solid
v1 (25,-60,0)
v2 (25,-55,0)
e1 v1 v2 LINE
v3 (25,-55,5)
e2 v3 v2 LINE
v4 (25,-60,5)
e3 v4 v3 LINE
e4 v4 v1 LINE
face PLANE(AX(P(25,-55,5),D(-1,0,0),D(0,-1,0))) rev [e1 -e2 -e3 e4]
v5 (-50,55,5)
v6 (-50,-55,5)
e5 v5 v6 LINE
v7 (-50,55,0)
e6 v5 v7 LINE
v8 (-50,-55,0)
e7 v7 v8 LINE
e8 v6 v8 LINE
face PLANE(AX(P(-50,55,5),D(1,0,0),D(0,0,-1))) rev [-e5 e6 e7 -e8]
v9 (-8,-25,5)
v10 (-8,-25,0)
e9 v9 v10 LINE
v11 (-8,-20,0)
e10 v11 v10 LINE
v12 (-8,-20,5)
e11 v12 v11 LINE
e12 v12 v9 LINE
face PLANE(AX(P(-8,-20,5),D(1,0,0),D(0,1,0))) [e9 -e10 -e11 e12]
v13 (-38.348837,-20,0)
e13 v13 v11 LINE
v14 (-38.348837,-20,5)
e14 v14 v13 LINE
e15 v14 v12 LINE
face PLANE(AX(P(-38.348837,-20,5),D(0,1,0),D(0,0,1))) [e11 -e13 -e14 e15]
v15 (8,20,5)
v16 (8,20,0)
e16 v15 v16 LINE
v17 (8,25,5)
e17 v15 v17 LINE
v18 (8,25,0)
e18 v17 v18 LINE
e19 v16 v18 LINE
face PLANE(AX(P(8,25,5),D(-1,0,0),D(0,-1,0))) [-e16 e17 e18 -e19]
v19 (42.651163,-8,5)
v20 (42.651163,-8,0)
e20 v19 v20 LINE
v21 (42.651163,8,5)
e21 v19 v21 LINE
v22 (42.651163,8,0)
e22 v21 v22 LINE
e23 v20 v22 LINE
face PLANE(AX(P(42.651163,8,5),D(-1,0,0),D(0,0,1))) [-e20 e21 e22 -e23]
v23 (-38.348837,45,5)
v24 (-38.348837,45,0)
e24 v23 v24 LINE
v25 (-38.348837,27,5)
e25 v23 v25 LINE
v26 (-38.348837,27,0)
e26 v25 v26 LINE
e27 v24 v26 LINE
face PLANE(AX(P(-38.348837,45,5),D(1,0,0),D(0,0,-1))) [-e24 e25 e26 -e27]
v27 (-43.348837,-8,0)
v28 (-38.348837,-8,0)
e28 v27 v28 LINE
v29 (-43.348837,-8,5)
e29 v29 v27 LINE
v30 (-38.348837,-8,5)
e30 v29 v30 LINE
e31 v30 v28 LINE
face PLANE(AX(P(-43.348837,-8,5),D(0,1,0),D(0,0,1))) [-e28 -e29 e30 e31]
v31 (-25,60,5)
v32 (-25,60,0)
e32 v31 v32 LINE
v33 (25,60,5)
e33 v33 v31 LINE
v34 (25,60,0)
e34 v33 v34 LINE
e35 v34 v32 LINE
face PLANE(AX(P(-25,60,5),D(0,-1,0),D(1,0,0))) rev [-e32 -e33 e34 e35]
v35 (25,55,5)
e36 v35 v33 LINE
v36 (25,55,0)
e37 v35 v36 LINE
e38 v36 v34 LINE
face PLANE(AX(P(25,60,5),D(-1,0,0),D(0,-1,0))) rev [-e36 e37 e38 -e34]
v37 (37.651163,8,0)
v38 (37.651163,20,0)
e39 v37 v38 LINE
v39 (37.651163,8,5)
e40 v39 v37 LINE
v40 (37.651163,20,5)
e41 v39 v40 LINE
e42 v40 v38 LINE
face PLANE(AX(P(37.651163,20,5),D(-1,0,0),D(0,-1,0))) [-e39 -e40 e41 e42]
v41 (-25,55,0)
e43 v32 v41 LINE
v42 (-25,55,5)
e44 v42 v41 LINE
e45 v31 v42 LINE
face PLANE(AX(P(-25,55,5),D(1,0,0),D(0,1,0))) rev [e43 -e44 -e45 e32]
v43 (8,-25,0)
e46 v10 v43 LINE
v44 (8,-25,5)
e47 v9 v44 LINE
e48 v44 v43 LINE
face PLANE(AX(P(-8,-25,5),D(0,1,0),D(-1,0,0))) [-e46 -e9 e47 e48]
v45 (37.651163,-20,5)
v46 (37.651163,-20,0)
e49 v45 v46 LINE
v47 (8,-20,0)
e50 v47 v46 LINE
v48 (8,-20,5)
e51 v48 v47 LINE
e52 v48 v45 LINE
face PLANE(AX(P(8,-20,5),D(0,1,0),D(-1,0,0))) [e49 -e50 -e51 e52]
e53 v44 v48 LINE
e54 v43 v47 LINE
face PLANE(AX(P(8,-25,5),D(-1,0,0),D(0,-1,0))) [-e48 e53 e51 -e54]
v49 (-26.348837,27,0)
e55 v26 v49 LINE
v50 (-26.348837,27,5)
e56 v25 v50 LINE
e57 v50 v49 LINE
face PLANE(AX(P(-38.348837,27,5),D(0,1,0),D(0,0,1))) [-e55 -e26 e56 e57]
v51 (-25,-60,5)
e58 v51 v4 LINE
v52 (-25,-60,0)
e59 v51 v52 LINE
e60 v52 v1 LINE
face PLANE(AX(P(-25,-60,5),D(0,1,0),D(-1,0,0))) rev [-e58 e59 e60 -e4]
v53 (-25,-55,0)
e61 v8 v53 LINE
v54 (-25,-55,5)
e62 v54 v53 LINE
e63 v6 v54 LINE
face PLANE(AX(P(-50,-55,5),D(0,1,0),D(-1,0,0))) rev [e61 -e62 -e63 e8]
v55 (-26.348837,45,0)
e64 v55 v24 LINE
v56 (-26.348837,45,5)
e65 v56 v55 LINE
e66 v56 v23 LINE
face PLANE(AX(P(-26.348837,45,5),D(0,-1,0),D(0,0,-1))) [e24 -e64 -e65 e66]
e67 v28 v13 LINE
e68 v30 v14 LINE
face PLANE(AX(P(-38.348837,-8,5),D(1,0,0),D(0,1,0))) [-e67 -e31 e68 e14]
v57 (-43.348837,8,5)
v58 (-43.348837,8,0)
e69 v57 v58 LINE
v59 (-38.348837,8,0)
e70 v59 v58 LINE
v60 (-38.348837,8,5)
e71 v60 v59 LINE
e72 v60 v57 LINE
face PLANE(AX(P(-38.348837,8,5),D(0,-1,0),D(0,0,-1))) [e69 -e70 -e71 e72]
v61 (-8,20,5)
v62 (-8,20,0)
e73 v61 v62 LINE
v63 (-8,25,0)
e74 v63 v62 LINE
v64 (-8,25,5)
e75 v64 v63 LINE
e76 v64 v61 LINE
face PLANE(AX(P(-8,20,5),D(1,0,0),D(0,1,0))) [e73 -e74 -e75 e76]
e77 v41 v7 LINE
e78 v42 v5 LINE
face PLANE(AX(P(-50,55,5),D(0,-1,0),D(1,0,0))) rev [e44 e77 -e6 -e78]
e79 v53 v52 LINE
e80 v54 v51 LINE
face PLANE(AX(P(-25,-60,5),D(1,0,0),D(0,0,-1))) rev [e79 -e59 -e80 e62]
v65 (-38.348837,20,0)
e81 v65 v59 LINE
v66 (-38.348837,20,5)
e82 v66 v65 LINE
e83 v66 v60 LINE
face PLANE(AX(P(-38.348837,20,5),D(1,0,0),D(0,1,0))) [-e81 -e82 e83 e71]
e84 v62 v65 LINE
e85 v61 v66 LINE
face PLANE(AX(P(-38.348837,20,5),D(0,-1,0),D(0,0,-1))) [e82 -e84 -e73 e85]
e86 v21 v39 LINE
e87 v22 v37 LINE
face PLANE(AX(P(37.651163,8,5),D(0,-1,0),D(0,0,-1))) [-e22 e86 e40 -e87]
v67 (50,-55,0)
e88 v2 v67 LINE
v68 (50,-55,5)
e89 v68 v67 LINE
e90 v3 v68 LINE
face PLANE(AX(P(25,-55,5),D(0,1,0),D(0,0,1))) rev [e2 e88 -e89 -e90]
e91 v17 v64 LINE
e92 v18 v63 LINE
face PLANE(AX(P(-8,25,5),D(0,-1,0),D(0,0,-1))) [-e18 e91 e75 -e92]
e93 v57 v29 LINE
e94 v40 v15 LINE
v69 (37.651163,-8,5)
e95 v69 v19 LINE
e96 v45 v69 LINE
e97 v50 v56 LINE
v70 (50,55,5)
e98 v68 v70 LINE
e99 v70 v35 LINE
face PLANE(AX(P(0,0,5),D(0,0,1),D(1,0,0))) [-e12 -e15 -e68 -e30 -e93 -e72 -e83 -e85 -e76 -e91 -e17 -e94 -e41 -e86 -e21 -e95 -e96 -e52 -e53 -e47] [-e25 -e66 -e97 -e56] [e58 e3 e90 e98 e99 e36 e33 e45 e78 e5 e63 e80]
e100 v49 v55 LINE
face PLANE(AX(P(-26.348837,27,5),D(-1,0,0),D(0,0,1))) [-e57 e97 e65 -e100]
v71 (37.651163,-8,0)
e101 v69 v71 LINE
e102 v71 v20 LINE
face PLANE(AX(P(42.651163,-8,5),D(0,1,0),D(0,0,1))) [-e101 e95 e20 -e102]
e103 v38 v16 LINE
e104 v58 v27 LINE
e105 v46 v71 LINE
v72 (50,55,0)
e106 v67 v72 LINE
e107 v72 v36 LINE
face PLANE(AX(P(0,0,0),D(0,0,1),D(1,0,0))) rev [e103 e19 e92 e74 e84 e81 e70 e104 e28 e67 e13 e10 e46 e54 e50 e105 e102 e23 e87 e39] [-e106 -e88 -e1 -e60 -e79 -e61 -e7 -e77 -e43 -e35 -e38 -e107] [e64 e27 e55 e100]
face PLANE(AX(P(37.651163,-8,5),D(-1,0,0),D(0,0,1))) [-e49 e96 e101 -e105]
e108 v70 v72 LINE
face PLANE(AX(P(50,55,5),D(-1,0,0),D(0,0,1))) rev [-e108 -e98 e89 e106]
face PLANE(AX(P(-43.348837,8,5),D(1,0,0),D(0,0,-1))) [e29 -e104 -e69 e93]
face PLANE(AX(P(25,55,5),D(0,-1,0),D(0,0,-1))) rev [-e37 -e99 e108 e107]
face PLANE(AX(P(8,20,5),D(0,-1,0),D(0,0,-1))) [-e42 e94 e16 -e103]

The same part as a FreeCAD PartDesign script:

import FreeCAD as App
import Part
import Sketcher

V = App.Vector

doc = App.newDocument("Part")
body = doc.addObject("PartDesign::Body", "Body")

# Sketch on XY plane
sketch1 = body.newObject("Sketcher::SketchObject", "Sketch")
sketch1.AttachmentSupport = (doc.getObject("XY_Plane"), [""])
sketch1.MapMode = "FlatFace"
sketch1.addGeometry([
    Part.LineSegment(V(25, 60, 0), V(-25, 60, 0)),  # 0
    Part.LineSegment(V(-25, 60, 0), V(-25, 55, 0)),  # 1
    Part.LineSegment(V(-25, 55, 0), V(-50, 55, 0)),  # 2
    Part.LineSegment(V(-50, 55, 0), V(-50, -55, 0)),  # 3
    Part.LineSegment(V(-50, -55, 0), V(-25, -55, 0)),  # 4
    Part.LineSegment(V(-25, -55, 0), V(-25, -60, 0)),  # 5
    Part.LineSegment(V(-25, -60, 0), V(25, -60, 0)),  # 6
    Part.LineSegment(V(25, -60, 0), V(25, -55, 0)),  # 7
    Part.LineSegment(V(25, -55, 0), V(50, -55, 0)),  # 8
    Part.LineSegment(V(50, -55, 0), V(50, 55, 0)),  # 9
    Part.LineSegment(V(50, 55, 0), V(25, 55, 0)),  # 10
    Part.LineSegment(V(25, 55, 0), V(25, 60, 0)),  # 11
    Part.LineSegment(V(38, 8, 0), V(43, 8, 0)),  # 12
    Part.LineSegment(V(43, 8, 0), V(43, -8, 0)),  # 13
    Part.LineSegment(V(43, -8, 0), V(38, -8, 0)),  # 14
    Part.LineSegment(V(38, -8, 0), V(38, -20, 0)),  # 15
    Part.LineSegment(V(38, -20, 0), V(8, -20, 0)),  # 16
    Part.LineSegment(V(8, -20, 0), V(8, -25, 0)),  # 17
    Part.LineSegment(V(8, -25, 0), V(-8, -25, 0)),  # 18
    Part.LineSegment(V(-8, -25, 0), V(-8, -20, 0)),  # 19
    Part.LineSegment(V(-8, -20, 0), V(-38, -20, 0)),  # 20
    Part.LineSegment(V(-38, -20, 0), V(-38, -8, 0)),  # 21
    Part.LineSegment(V(-38, -8, 0), V(-43, -8, 0)),  # 22
    Part.LineSegment(V(-43, -8, 0), V(-43, 8, 0)),  # 23
    Part.LineSegment(V(-43, 8, 0), V(-38, 8, 0)),  # 24
    Part.LineSegment(V(-38, 8, 0), V(-38, 20, 0)),  # 25
    Part.LineSegment(V(-38, 20, 0), V(-8, 20, 0)),  # 26
    Part.LineSegment(V(-8, 20, 0), V(-8, 25, 0)),  # 27
    Part.LineSegment(V(-8, 25, 0), V(8, 25, 0)),  # 28
    Part.LineSegment(V(8, 25, 0), V(8, 20, 0)),  # 29
    Part.LineSegment(V(8, 20, 0), V(38, 20, 0)),  # 30
    Part.LineSegment(V(38, 20, 0), V(38, 8, 0)),  # 31
    Part.LineSegment(V(-38, 27, 0), V(-38, 45, 0)),  # 32
    Part.LineSegment(V(-38, 45, 0), V(-26, 45, 0)),  # 33
    Part.LineSegment(V(-26, 45, 0), V(-26, 27, 0)),  # 34
    Part.LineSegment(V(-26, 27, 0), V(-38, 27, 0)),  # 35
], False)
sketch1.addConstraint([
    Sketcher.Constraint("Coincident", 0, 2, 1, 1),
    Sketcher.Constraint("Coincident", 1, 2, 2, 1),
    Sketcher.Constraint("Coincident", 2, 2, 3, 1),
    Sketcher.Constraint("Coincident", 3, 2, 4, 1),
    Sketcher.Constraint("Coincident", 4, 2, 5, 1),
    Sketcher.Constraint("Coincident", 5, 2, 6, 1),
    Sketcher.Constraint("Coincident", 6, 2, 7, 1),
    Sketcher.Constraint("Coincident", 7, 2, 8, 1),
    Sketcher.Constraint("Coincident", 8, 2, 9, 1),
    Sketcher.Constraint("Coincident", 9, 2, 10, 1),
    Sketcher.Constraint("Coincident", 10, 2, 11, 1),
    Sketcher.Constraint("Coincident", 11, 2, 0, 1),
    Sketcher.Constraint("Coincident", 12, 2, 13, 1),
    Sketcher.Constraint("Coincident", 13, 2, 14, 1),
    Sketcher.Constraint("Coincident", 14, 2, 15, 1),
    Sketcher.Constraint("Coincident", 15, 2, 16, 1),
    Sketcher.Constraint("Coincident", 16, 2, 17, 1),
    Sketcher.Constraint("Coincident", 17, 2, 18, 1),
    Sketcher.Constraint("Coincident", 18, 2, 19, 1),
    Sketcher.Constraint("Coincident", 19, 2, 20, 1),
    Sketcher.Constraint("Coincident", 20, 2, 21, 1),
    Sketcher.Constraint("Coincident", 21, 2, 22, 1),
    Sketcher.Constraint("Coincident", 22, 2, 23, 1),
    Sketcher.Constraint("Coincident", 23, 2, 24, 1),
    Sketcher.Constraint("Coincident", 24, 2, 25, 1),
    Sketcher.Constraint("Coincident", 25, 2, 26, 1),
    Sketcher.Constraint("Coincident", 26, 2, 27, 1),
    Sketcher.Constraint("Coincident", 27, 2, 28, 1),
    Sketcher.Constraint("Coincident", 28, 2, 29, 1),
    Sketcher.Constraint("Coincident", 29, 2, 30, 1),
    Sketcher.Constraint("Coincident", 30, 2, 31, 1),
    Sketcher.Constraint("Coincident", 31, 2, 12, 1),
    Sketcher.Constraint("Coincident", 32, 2, 33, 1),
    Sketcher.Constraint("Coincident", 33, 2, 34, 1),
    Sketcher.Constraint("Coincident", 34, 2, 35, 1),
    Sketcher.Constraint("Coincident", 35, 2, 32, 1),
    Sketcher.Constraint("Horizontal", 0),
    Sketcher.Constraint("Vertical", 1),
    Sketcher.Constraint("Horizontal", 2),
    Sketcher.Constraint("Vertical", 3),
    Sketcher.Constraint("Horizontal", 4),
    Sketcher.Constraint("Vertical", 5),
    Sketcher.Constraint("Horizontal", 6),
    Sketcher.Constraint("Vertical", 7),
    Sketcher.Constraint("Horizontal", 8),
    Sketcher.Constraint("Vertical", 9),
    Sketcher.Constraint("Horizontal", 10),
    Sketcher.Constraint("Vertical", 11),
    Sketcher.Constraint("Horizontal", 12),
    Sketcher.Constraint("Vertical", 13),
    Sketcher.Constraint("Horizontal", 14),
    Sketcher.Constraint("Vertical", 15),
    Sketcher.Constraint("Horizontal", 16),
    Sketcher.Constraint("Vertical", 17),
    Sketcher.Constraint("Horizontal", 18),
    Sketcher.Constraint("Vertical", 19),
    Sketcher.Constraint("Horizontal", 20),
    Sketcher.Constraint("Vertical", 21),
    Sketcher.Constraint("Horizontal", 22),
    Sketcher.Constraint("Vertical", 23),
    Sketcher.Constraint("Horizontal", 24),
    Sketcher.Constraint("Vertical", 25),
    Sketcher.Constraint("Horizontal", 26),
    Sketcher.Constraint("Vertical", 27),
    Sketcher.Constraint("Horizontal", 28),
    Sketcher.Constraint("Vertical", 29),
    Sketcher.Constraint("Horizontal", 30),
    Sketcher.Constraint("Vertical", 31),
    Sketcher.Constraint("Vertical", 32),
    Sketcher.Constraint("Horizontal", 33),
    Sketcher.Constraint("Vertical", 34),
    Sketcher.Constraint("Horizontal", 35),
    Sketcher.Constraint("Symmetric", 0, 2, 6, 2, -1, 1),
    Sketcher.Constraint("Symmetric", 2, 2, 8, 2, -1, 1),
    Sketcher.Constraint("Symmetric", 4, 2, 10, 2, -1, 1),
    Sketcher.Constraint("Symmetric", 16, 2, 26, 2, -1, 1),
    Sketcher.Constraint("Symmetric", 18, 2, 28, 2, -1, 1),
    Sketcher.Constraint("Symmetric", 4, 2, 7, 2, -2),
    Sketcher.Constraint("Symmetric", 16, 2, 19, 2, -2),
    Sketcher.Constraint("Symmetric", 21, 2, 24, 2, -1),
    Sketcher.Constraint("Symmetric", 15, 2, 30, 2, -1),
    Sketcher.Constraint("Horizontal", 14, 2, 21, 2),
    Sketcher.Constraint("Horizontal", 12, 2, 23, 2),
    Sketcher.Constraint("Vertical", 25, 2, 32, 2),
    Sketcher.Constraint("Equal", 14, 22),
    Sketcher.Constraint("Equal", 24, 1),
    Sketcher.Constraint("Equal", 28, 13),
    Sketcher.Constraint("Equal", 35, 15),
    Sketcher.Constraint("Equal", 11, 17),
    Sketcher.Constraint("DistanceX", 0, 2, 0, 1, 50.0),
    Sketcher.Constraint("DistanceX", 2, 2, 2, 1, 25.0),
    Sketcher.Constraint("DistanceX", 12, 1, 12, 2, 5.0),
    Sketcher.Constraint("DistanceX", 18, 2, 18, 1, 16.0),
    Sketcher.Constraint("DistanceX", 33, 1, 33, 2, 12.0),
    Sketcher.Constraint("DistanceY", 3, 2, 3, 1, 110.0),
    Sketcher.Constraint("DistanceY", 32, 1, 32, 2, 18.0),
    Sketcher.Constraint("DistanceY", -1, 1, 32, 2, 45.0),
    Sketcher.Constraint("DistanceX", 16, 2, 16, 1, 29.651163),
    Sketcher.Constraint("DistanceX", 20, 2, 20, 1, 30.348837),
])
pad1 = body.newObject("PartDesign::Pad", "Pad")
pad1.Profile = sketch1
pad1.Length = 5

doc.recompute()
